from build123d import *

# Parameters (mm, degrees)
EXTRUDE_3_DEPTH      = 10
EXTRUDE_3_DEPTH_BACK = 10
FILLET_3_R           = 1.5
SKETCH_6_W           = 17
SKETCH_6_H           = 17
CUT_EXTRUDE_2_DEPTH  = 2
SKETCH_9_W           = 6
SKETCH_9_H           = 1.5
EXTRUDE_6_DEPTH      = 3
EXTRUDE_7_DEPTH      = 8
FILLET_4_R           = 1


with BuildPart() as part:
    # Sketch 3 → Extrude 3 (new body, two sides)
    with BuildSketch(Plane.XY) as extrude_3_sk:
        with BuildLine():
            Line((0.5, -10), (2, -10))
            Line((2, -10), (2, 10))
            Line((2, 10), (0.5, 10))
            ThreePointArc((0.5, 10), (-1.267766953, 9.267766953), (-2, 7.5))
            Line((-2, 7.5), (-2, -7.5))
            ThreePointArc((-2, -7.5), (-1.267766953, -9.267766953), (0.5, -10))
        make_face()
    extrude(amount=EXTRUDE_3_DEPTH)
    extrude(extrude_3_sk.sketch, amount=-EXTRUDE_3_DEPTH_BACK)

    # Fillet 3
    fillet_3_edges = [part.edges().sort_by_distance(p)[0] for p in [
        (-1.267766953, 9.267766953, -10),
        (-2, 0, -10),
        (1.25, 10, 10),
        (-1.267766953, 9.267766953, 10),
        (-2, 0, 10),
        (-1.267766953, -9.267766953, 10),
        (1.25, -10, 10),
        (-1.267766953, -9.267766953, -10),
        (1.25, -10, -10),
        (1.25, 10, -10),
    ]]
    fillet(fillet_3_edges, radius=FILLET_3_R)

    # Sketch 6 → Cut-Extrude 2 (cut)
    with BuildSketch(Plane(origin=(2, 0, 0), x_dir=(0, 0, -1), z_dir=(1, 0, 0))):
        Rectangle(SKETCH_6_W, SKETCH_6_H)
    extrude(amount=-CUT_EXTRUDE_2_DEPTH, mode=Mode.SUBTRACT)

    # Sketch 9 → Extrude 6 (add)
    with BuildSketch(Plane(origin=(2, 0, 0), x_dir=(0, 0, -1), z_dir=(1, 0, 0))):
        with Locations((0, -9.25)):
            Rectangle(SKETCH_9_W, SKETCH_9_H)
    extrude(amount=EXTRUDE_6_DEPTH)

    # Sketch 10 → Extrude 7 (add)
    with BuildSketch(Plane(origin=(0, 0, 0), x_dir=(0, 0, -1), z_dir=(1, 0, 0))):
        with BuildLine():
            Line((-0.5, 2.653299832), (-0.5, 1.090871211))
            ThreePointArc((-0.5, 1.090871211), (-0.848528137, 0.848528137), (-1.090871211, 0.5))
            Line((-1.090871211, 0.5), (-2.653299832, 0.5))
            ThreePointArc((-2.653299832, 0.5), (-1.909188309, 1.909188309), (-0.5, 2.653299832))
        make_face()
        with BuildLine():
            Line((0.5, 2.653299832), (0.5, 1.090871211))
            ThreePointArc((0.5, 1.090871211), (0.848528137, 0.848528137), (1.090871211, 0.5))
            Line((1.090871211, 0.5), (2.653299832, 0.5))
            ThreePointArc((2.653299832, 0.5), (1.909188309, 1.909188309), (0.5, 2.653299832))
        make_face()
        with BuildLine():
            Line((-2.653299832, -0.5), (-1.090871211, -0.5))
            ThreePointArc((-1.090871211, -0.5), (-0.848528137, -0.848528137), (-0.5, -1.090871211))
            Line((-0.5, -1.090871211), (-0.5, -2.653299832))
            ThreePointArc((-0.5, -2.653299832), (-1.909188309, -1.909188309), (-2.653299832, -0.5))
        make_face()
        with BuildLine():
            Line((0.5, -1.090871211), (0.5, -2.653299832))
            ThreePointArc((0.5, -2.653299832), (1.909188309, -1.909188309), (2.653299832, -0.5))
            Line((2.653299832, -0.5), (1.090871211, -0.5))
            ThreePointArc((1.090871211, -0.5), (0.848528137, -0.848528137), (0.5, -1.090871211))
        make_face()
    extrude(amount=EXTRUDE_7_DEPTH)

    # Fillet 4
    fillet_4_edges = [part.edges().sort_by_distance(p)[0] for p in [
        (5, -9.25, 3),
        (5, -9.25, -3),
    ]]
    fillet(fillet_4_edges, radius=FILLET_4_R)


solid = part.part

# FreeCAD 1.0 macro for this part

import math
import FreeCAD as App
import Part
import Sketcher
from FreeCAD import Vector
Q = App.Units.Quantity


def edges_at(feature, points):
    """Names of the edges that pass closest to the given points."""
    edges = feature.Shape.Edges
    near = lambda p: min(range(len(edges)), key=lambda i: edges[i].distToShape(Part.Vertex(*p))[0])
    return sorted({f"Edge{near(p) + 1}" for p in points})


def add_polygon(sketch, points):
    """Adds a closed chain of lines whose ends are joined by coincident constraints."""
    first, n = sketch.GeometryCount, len(points)
    for a, b in zip(points, points[1:] + points[:1]):
        sketch.addGeometry(Part.LineSegment(App.Vector(*a, 0), App.Vector(*b, 0)), False)
    for i in range(n):
        sketch.addConstraint(Sketcher.Constraint("Coincident", first + i, 2, first + (i + 1) % n, 1))

doc = App.newDocument("Part")
body = doc.addObject("PartDesign::Body", "Body")

# Sketch on XY plane
sketch1 = body.newObject("Sketcher::SketchObject", "Sketch")
sketch1.AttachmentSupport = (doc.getObject("XY_Plane"), [""])
sketch1.MapMode = "FlatFace"
sketch1.addGeometry(Part.LineSegment(Vector(0.5, -10, 0), Vector(2, -10, 0)), False)
sketch1.addGeometry(Part.LineSegment(Vector(2, -10, 0), Vector(2, 10, 0)), False)
sketch1.addGeometry(Part.LineSegment(Vector(2, 10, 0), Vector(0.5, 10, 0)), False)
sketch1.addGeometry(Part.ArcOfCircle(Part.Circle(Vector(0.5, 7.5, 0), Vector(0, 0, 1), 2.5), math.radians(90), math.radians(180)), False)
sketch1.addGeometry(Part.LineSegment(Vector(-2, 7.5, 0), Vector(-2, -7.5, 0)), False)
sketch1.addGeometry(Part.ArcOfCircle(Part.Circle(Vector(0.5, -7.5, 0), Vector(0, 0, 1), 2.5), math.radians(180), math.radians(270)), False)
sketch1.addConstraint(Sketcher.Constraint("Coincident", 0, 2, 1, 1))
sketch1.addConstraint(Sketcher.Constraint("Coincident", 1, 2, 2, 1))
sketch1.addConstraint(Sketcher.Constraint("Tangent", 2, 2, 3, 1))
sketch1.addConstraint(Sketcher.Constraint("Tangent", 3, 2, 4, 1))
sketch1.addConstraint(Sketcher.Constraint("Tangent", 4, 2, 5, 1))
sketch1.addConstraint(Sketcher.Constraint("Tangent", 5, 2, 0, 1))
sketch1.addConstraint(Sketcher.Constraint("Horizontal", 0))
sketch1.addConstraint(Sketcher.Constraint("Vertical", 1))
sketch1.addConstraint(Sketcher.Constraint("Horizontal", 2))
sketch1.addConstraint(Sketcher.Constraint("Vertical", 4))
sketch1.addConstraint(Sketcher.Constraint("Equal", 3, 5))
sketch1.addConstraint(Sketcher.Constraint("Radius", 3, Q("2.5 mm")))
sketch1.addConstraint(Sketcher.Constraint("DistanceY", 1, 1, 1, 2, Q("20 mm")))
sketch1.addConstraint(Sketcher.Constraint("DistanceX", 0, 1, 0, 2, Q("1.5 mm")))
sketch1.addConstraint(Sketcher.Constraint("DistanceX", -1, 1, 0, 2, Q("2 mm")))
sketch1.addConstraint(Sketcher.Constraint("DistanceY", 0, 2, -1, 1, Q("10 mm")))
pad1 = body.newObject("PartDesign::Pad", "Pad")
pad1.Profile = sketch1
pad1.Type = "TwoLengths"
pad1.Length = 10
pad1.Length2 = 10
doc.recompute()

fillet = body.newObject("PartDesign::Fillet", "Fillet")
fillet.Base = (pad1, edges_at(pad1, [
    (-1.268, 9.268, -10),
    (-2, 0, -10),
    (1.25, 10, 10),
    (-1.268, 9.268, 10),
    (-2, 0, 10),
    (-1.268, -9.268, 10),
    (1.25, -10, 10),
    (-1.268, -9.268, -10),
    (1.25, -10, -10),
    (1.25, 10, -10),
]))
fillet.Radius = 1.5

# Sketch on YZ plane
sketch2 = body.newObject("Sketcher::SketchObject", "Sketch001")
sketch2.AttachmentSupport = (doc.getObject("YZ_Plane"), [""])
sketch2.MapMode = "FlatFace"
sketch2.AttachmentOffset = App.Placement(Vector(0, 0, 2), App.Rotation())
add_polygon(sketch2, [(8, 8), (-8, 8), (-8, -8), (8, -8)])  # lines 0-3
sketch2.addConstraint(Sketcher.Constraint("Horizontal", 0))
sketch2.addConstraint(Sketcher.Constraint("Vertical", 1))
sketch2.addConstraint(Sketcher.Constraint("Horizontal", 2))
sketch2.addConstraint(Sketcher.Constraint("Vertical", 3))
sketch2.addConstraint(Sketcher.Constraint("Symmetric", 0, 2, 2, 2, -1, 1))
sketch2.addConstraint(Sketcher.Constraint("Equal", 2, 1))
sketch2.addConstraint(Sketcher.Constraint("DistanceX", 0, 2, 0, 1, Q("17 mm")))
pocket1 = body.newObject("PartDesign::Pocket", "Pocket")
pocket1.Profile = sketch2
pocket1.Length = 2

# Sketch on YZ plane
sketch3 = body.newObject("Sketcher::SketchObject", "Sketch002")
sketch3.AttachmentSupport = (doc.getObject("YZ_Plane"), [""])
sketch3.MapMode = "FlatFace"
sketch3.AttachmentOffset = App.Placement(Vector(0, 0, 2), App.Rotation())
add_polygon(sketch3, [(-8.5, 3), (-10, 3), (-10, -3), (-8.5, -3)])  # lines 0-3
sketch3.addConstraint(Sketcher.Constraint("Horizontal", 0))
sketch3.addConstraint(Sketcher.Constraint("Vertical", 1))
sketch3.addConstraint(Sketcher.Constraint("Horizontal", 2))
sketch3.addConstraint(Sketcher.Constraint("Vertical", 3))
sketch3.addConstraint(Sketcher.Constraint("DistanceY", 1, 2, 1, 1, Q("6 mm")))
sketch3.addConstraint(Sketcher.Constraint("DistanceX", 0, 2, 0, 1, Q("1.5 mm")))
sketch3.addConstraint(Sketcher.Constraint("DistanceX", 0, 2, -1, 1, Q("10 mm")))
sketch3.addConstraint(Sketcher.Constraint("DistanceY", -1, 1, 0, 2, Q("3 mm")))
pad2 = body.newObject("PartDesign::Pad", "Pad001")
pad2.Profile = sketch3
pad2.Length = 3

# Sketch on YZ plane
sketch4 = body.newObject("Sketcher::SketchObject", "Sketch003")
sketch4.AttachmentSupport = (doc.getObject("YZ_Plane"), [""])
sketch4.MapMode = "FlatFace"
sketch4.addGeometry(Part.LineSegment(Vector(1.1, 0.5, 0), Vector(2.7, 0.5, 0)), False)
sketch4.addGeometry(Part.ArcOfCircle(Part.Circle(Vector(0, 0, 0), Vector(0, 0, 1), 2.7), math.radians(11), math.radians(79)), False)
sketch4.addGeometry(Part.LineSegment(Vector(0.5, 2.7, 0), Vector(0.5, 1.1, 0)), False)
sketch4.addGeometry(Part.ArcOfCircle(Part.Circle(Vector(0, 0, 0), Vector(0, 0, 1), 1.2), math.radians(25), math.radians(65)), False)
sketch4.addGeometry(Part.LineSegment(Vector(2.7, -0.5, 0), Vector(1.1, -0.5, 0)), False)
sketch4.addGeometry(Part.ArcOfCircle(Part.Circle(Vector(0, 0, 0), Vector(0, 0, 1), 1.2), math.radians(-65), math.radians(-25)), False)
sketch4.addGeometry(Part.LineSegment(Vector(0.5, -1.1, 0), Vector(0.5, -2.7, 0)), False)
sketch4.addGeometry(Part.ArcOfCircle(Part.Circle(Vector(0, 0, 0), Vector(0, 0, 1), 2.7), math.radians(-79), math.radians(-11)), False)
sketch4.addGeometry(Part.LineSegment(Vector(-0.5, 1.1, 0), Vector(-0.5, 2.7, 0)), False)
sketch4.addGeometry(Part.ArcOfCircle(Part.Circle(Vector(0, 0, 0), Vector(0, 0, 1), 2.7), math.radians(101), math.radians(169)), False)
sketch4.addGeometry(Part.LineSegment(Vector(-2.7, 0.5, 0), Vector(-1.1, 0.5, 0)), False)
sketch4.addGeometry(Part.ArcOfCircle(Part.Circle(Vector(0, 0, 0), Vector(0, 0, 1), 1.2), math.radians(115), math.radians(155)), False)
sketch4.addGeometry(Part.LineSegment(Vector(-1.1, -0.5, 0), Vector(-2.7, -0.5, 0)), False)
sketch4.addGeometry(Part.ArcOfCircle(Part.Circle(Vector(0, 0, 0), Vector(0, 0, 1), 2.7), math.radians(-169), math.radians(-101)), False)
sketch4.addGeometry(Part.LineSegment(Vector(-0.5, -2.7, 0), Vector(-0.5, -1.1, 0)), False)
sketch4.addGeometry(Part.ArcOfCircle(Part.Circle(Vector(0, 0, 0), Vector(0, 0, 1), 1.2), math.radians(-155), math.radians(-115)), False)
sketch4.addConstraint(Sketcher.Constraint("Coincident", 0, 2, 1, 1))
sketch4.addConstraint(Sketcher.Constraint("Coincident", 1, 2, 2, 1))
sketch4.addConstraint(Sketcher.Constraint("Coincident", 2, 2, 3, 2))
sketch4.addConstraint(Sketcher.Constraint("Coincident", 3, 1, 0, 1))
sketch4.addConstraint(Sketcher.Constraint("Coincident", 4, 2, 5, 2))
sketch4.addConstraint(Sketcher.Constraint("Coincident", 5, 1, 6, 1))
sketch4.addConstraint(Sketcher.Constraint("Coincident", 6, 2, 7, 1))
sketch4.addConstraint(Sketcher.Constraint("Coincident", 7, 2, 4, 1))
sketch4.addConstraint(Sketcher.Constraint("Coincident", 8, 2, 9, 1))
sketch4.addConstraint(Sketcher.Constraint("Coincident", 9, 2, 10, 1))
sketch4.addConstraint(Sketcher.Constraint("Coincident", 10, 2, 11, 2))
sketch4.addConstraint(Sketcher.Constraint("Coincident", 11, 1, 8, 1))
sketch4.addConstraint(Sketcher.Constraint("Coincident", 12, 2, 13, 1))
sketch4.addConstraint(Sketcher.Constraint("Coincident", 13, 2, 14, 1))
sketch4.addConstraint(Sketcher.Constraint("Coincident", 14, 2, 15, 2))
sketch4.addConstraint(Sketcher.Constraint("Coincident", 15, 1, 12, 1))
sketch4.addConstraint(Sketcher.Constraint("Horizontal", 0))
sketch4.addConstraint(Sketcher.Constraint("Vertical", 2))
sketch4.addConstraint(Sketcher.Constraint("Horizontal", 4))
sketch4.addConstraint(Sketcher.Constraint("Vertical", 6))
sketch4.addConstraint(Sketcher.Constraint("Vertical", 8))
sketch4.addConstraint(Sketcher.Constraint("Horizontal", 10))
sketch4.addConstraint(Sketcher.Constraint("Horizontal", 12))
sketch4.addConstraint(Sketcher.Constraint("Vertical", 14))
sketch4.addConstraint(Sketcher.Constraint("Coincident", 1, 3, -1, 1))
sketch4.addConstraint(Sketcher.Constraint("Coincident", 3, 3, -1, 1))
sketch4.addConstraint(Sketcher.Constraint("Coincident", 5, 3, -1, 1))
sketch4.addConstraint(Sketcher.Constraint("Coincident", 7, 3, -1, 1))
sketch4.addConstraint(Sketcher.Constraint("Coincident", 9, 3, -1, 1))
sketch4.addConstraint(Sketcher.Constraint("Coincident", 11, 3, -1, 1))
sketch4.addConstraint(Sketcher.Constraint("Coincident", 13, 3, -1, 1))
sketch4.addConstraint(Sketcher.Constraint("Coincident", 15, 3, -1, 1))
sketch4.addConstraint(Sketcher.Constraint("Equal", 3, 5))
sketch4.addConstraint(Sketcher.Constraint("Equal", 1, 7))
sketch4.addConstraint(Sketcher.Constraint("Equal", 7, 9))
sketch4.addConstraint(Sketcher.Constraint("Equal", 5, 11))
sketch4.addConstraint(Sketcher.Constraint("Equal", 9, 13))
sketch4.addConstraint(Sketcher.Constraint("Equal", 11, 15))
sketch4.addConstraint(Sketcher.Constraint("Horizontal", 1, 2, 8, 2))
sketch4.addConstraint(Sketcher.Constraint("Horizontal", 3, 1, 9, 2))
sketch4.addConstraint(Sketcher.Constraint("Horizontal", 7, 2, 12, 2))
sketch4.addConstraint(Sketcher.Constraint("Horizontal", 6, 2, 13, 2))
sketch4.addConstraint(Sketcher.Constraint("Vertical", 3, 1, 4, 2))
sketch4.addConstraint(Sketcher.Constraint("Vertical", 2, 2, 5, 1))
sketch4.addConstraint(Sketcher.Constraint("Equal", 12, 2))
sketch4.addConstraint(Sketcher.Constraint("Radius", 1, Q("2.7 mm")))
sketch4.addConstraint(Sketcher.Constraint("Radius", 3, Q("1.2 mm")))
sketch4.addConstraint(Sketcher.Constraint("DistanceY", 4, 2, 3, 1, Q("1 mm")))
pad3 = body.newObject("PartDesign::Pad", "Pad002")
pad3.Profile = sketch4
pad3.Length = 8
doc.recompute()

fillet2 = body.newObject("PartDesign::Fillet", "Fillet001")
fillet2.Base = (pad3, edges_at(pad3, [(5, -9.25, 3), (5, -9.25, -3)]))
fillet2.Radius = 1

doc.recompute()
